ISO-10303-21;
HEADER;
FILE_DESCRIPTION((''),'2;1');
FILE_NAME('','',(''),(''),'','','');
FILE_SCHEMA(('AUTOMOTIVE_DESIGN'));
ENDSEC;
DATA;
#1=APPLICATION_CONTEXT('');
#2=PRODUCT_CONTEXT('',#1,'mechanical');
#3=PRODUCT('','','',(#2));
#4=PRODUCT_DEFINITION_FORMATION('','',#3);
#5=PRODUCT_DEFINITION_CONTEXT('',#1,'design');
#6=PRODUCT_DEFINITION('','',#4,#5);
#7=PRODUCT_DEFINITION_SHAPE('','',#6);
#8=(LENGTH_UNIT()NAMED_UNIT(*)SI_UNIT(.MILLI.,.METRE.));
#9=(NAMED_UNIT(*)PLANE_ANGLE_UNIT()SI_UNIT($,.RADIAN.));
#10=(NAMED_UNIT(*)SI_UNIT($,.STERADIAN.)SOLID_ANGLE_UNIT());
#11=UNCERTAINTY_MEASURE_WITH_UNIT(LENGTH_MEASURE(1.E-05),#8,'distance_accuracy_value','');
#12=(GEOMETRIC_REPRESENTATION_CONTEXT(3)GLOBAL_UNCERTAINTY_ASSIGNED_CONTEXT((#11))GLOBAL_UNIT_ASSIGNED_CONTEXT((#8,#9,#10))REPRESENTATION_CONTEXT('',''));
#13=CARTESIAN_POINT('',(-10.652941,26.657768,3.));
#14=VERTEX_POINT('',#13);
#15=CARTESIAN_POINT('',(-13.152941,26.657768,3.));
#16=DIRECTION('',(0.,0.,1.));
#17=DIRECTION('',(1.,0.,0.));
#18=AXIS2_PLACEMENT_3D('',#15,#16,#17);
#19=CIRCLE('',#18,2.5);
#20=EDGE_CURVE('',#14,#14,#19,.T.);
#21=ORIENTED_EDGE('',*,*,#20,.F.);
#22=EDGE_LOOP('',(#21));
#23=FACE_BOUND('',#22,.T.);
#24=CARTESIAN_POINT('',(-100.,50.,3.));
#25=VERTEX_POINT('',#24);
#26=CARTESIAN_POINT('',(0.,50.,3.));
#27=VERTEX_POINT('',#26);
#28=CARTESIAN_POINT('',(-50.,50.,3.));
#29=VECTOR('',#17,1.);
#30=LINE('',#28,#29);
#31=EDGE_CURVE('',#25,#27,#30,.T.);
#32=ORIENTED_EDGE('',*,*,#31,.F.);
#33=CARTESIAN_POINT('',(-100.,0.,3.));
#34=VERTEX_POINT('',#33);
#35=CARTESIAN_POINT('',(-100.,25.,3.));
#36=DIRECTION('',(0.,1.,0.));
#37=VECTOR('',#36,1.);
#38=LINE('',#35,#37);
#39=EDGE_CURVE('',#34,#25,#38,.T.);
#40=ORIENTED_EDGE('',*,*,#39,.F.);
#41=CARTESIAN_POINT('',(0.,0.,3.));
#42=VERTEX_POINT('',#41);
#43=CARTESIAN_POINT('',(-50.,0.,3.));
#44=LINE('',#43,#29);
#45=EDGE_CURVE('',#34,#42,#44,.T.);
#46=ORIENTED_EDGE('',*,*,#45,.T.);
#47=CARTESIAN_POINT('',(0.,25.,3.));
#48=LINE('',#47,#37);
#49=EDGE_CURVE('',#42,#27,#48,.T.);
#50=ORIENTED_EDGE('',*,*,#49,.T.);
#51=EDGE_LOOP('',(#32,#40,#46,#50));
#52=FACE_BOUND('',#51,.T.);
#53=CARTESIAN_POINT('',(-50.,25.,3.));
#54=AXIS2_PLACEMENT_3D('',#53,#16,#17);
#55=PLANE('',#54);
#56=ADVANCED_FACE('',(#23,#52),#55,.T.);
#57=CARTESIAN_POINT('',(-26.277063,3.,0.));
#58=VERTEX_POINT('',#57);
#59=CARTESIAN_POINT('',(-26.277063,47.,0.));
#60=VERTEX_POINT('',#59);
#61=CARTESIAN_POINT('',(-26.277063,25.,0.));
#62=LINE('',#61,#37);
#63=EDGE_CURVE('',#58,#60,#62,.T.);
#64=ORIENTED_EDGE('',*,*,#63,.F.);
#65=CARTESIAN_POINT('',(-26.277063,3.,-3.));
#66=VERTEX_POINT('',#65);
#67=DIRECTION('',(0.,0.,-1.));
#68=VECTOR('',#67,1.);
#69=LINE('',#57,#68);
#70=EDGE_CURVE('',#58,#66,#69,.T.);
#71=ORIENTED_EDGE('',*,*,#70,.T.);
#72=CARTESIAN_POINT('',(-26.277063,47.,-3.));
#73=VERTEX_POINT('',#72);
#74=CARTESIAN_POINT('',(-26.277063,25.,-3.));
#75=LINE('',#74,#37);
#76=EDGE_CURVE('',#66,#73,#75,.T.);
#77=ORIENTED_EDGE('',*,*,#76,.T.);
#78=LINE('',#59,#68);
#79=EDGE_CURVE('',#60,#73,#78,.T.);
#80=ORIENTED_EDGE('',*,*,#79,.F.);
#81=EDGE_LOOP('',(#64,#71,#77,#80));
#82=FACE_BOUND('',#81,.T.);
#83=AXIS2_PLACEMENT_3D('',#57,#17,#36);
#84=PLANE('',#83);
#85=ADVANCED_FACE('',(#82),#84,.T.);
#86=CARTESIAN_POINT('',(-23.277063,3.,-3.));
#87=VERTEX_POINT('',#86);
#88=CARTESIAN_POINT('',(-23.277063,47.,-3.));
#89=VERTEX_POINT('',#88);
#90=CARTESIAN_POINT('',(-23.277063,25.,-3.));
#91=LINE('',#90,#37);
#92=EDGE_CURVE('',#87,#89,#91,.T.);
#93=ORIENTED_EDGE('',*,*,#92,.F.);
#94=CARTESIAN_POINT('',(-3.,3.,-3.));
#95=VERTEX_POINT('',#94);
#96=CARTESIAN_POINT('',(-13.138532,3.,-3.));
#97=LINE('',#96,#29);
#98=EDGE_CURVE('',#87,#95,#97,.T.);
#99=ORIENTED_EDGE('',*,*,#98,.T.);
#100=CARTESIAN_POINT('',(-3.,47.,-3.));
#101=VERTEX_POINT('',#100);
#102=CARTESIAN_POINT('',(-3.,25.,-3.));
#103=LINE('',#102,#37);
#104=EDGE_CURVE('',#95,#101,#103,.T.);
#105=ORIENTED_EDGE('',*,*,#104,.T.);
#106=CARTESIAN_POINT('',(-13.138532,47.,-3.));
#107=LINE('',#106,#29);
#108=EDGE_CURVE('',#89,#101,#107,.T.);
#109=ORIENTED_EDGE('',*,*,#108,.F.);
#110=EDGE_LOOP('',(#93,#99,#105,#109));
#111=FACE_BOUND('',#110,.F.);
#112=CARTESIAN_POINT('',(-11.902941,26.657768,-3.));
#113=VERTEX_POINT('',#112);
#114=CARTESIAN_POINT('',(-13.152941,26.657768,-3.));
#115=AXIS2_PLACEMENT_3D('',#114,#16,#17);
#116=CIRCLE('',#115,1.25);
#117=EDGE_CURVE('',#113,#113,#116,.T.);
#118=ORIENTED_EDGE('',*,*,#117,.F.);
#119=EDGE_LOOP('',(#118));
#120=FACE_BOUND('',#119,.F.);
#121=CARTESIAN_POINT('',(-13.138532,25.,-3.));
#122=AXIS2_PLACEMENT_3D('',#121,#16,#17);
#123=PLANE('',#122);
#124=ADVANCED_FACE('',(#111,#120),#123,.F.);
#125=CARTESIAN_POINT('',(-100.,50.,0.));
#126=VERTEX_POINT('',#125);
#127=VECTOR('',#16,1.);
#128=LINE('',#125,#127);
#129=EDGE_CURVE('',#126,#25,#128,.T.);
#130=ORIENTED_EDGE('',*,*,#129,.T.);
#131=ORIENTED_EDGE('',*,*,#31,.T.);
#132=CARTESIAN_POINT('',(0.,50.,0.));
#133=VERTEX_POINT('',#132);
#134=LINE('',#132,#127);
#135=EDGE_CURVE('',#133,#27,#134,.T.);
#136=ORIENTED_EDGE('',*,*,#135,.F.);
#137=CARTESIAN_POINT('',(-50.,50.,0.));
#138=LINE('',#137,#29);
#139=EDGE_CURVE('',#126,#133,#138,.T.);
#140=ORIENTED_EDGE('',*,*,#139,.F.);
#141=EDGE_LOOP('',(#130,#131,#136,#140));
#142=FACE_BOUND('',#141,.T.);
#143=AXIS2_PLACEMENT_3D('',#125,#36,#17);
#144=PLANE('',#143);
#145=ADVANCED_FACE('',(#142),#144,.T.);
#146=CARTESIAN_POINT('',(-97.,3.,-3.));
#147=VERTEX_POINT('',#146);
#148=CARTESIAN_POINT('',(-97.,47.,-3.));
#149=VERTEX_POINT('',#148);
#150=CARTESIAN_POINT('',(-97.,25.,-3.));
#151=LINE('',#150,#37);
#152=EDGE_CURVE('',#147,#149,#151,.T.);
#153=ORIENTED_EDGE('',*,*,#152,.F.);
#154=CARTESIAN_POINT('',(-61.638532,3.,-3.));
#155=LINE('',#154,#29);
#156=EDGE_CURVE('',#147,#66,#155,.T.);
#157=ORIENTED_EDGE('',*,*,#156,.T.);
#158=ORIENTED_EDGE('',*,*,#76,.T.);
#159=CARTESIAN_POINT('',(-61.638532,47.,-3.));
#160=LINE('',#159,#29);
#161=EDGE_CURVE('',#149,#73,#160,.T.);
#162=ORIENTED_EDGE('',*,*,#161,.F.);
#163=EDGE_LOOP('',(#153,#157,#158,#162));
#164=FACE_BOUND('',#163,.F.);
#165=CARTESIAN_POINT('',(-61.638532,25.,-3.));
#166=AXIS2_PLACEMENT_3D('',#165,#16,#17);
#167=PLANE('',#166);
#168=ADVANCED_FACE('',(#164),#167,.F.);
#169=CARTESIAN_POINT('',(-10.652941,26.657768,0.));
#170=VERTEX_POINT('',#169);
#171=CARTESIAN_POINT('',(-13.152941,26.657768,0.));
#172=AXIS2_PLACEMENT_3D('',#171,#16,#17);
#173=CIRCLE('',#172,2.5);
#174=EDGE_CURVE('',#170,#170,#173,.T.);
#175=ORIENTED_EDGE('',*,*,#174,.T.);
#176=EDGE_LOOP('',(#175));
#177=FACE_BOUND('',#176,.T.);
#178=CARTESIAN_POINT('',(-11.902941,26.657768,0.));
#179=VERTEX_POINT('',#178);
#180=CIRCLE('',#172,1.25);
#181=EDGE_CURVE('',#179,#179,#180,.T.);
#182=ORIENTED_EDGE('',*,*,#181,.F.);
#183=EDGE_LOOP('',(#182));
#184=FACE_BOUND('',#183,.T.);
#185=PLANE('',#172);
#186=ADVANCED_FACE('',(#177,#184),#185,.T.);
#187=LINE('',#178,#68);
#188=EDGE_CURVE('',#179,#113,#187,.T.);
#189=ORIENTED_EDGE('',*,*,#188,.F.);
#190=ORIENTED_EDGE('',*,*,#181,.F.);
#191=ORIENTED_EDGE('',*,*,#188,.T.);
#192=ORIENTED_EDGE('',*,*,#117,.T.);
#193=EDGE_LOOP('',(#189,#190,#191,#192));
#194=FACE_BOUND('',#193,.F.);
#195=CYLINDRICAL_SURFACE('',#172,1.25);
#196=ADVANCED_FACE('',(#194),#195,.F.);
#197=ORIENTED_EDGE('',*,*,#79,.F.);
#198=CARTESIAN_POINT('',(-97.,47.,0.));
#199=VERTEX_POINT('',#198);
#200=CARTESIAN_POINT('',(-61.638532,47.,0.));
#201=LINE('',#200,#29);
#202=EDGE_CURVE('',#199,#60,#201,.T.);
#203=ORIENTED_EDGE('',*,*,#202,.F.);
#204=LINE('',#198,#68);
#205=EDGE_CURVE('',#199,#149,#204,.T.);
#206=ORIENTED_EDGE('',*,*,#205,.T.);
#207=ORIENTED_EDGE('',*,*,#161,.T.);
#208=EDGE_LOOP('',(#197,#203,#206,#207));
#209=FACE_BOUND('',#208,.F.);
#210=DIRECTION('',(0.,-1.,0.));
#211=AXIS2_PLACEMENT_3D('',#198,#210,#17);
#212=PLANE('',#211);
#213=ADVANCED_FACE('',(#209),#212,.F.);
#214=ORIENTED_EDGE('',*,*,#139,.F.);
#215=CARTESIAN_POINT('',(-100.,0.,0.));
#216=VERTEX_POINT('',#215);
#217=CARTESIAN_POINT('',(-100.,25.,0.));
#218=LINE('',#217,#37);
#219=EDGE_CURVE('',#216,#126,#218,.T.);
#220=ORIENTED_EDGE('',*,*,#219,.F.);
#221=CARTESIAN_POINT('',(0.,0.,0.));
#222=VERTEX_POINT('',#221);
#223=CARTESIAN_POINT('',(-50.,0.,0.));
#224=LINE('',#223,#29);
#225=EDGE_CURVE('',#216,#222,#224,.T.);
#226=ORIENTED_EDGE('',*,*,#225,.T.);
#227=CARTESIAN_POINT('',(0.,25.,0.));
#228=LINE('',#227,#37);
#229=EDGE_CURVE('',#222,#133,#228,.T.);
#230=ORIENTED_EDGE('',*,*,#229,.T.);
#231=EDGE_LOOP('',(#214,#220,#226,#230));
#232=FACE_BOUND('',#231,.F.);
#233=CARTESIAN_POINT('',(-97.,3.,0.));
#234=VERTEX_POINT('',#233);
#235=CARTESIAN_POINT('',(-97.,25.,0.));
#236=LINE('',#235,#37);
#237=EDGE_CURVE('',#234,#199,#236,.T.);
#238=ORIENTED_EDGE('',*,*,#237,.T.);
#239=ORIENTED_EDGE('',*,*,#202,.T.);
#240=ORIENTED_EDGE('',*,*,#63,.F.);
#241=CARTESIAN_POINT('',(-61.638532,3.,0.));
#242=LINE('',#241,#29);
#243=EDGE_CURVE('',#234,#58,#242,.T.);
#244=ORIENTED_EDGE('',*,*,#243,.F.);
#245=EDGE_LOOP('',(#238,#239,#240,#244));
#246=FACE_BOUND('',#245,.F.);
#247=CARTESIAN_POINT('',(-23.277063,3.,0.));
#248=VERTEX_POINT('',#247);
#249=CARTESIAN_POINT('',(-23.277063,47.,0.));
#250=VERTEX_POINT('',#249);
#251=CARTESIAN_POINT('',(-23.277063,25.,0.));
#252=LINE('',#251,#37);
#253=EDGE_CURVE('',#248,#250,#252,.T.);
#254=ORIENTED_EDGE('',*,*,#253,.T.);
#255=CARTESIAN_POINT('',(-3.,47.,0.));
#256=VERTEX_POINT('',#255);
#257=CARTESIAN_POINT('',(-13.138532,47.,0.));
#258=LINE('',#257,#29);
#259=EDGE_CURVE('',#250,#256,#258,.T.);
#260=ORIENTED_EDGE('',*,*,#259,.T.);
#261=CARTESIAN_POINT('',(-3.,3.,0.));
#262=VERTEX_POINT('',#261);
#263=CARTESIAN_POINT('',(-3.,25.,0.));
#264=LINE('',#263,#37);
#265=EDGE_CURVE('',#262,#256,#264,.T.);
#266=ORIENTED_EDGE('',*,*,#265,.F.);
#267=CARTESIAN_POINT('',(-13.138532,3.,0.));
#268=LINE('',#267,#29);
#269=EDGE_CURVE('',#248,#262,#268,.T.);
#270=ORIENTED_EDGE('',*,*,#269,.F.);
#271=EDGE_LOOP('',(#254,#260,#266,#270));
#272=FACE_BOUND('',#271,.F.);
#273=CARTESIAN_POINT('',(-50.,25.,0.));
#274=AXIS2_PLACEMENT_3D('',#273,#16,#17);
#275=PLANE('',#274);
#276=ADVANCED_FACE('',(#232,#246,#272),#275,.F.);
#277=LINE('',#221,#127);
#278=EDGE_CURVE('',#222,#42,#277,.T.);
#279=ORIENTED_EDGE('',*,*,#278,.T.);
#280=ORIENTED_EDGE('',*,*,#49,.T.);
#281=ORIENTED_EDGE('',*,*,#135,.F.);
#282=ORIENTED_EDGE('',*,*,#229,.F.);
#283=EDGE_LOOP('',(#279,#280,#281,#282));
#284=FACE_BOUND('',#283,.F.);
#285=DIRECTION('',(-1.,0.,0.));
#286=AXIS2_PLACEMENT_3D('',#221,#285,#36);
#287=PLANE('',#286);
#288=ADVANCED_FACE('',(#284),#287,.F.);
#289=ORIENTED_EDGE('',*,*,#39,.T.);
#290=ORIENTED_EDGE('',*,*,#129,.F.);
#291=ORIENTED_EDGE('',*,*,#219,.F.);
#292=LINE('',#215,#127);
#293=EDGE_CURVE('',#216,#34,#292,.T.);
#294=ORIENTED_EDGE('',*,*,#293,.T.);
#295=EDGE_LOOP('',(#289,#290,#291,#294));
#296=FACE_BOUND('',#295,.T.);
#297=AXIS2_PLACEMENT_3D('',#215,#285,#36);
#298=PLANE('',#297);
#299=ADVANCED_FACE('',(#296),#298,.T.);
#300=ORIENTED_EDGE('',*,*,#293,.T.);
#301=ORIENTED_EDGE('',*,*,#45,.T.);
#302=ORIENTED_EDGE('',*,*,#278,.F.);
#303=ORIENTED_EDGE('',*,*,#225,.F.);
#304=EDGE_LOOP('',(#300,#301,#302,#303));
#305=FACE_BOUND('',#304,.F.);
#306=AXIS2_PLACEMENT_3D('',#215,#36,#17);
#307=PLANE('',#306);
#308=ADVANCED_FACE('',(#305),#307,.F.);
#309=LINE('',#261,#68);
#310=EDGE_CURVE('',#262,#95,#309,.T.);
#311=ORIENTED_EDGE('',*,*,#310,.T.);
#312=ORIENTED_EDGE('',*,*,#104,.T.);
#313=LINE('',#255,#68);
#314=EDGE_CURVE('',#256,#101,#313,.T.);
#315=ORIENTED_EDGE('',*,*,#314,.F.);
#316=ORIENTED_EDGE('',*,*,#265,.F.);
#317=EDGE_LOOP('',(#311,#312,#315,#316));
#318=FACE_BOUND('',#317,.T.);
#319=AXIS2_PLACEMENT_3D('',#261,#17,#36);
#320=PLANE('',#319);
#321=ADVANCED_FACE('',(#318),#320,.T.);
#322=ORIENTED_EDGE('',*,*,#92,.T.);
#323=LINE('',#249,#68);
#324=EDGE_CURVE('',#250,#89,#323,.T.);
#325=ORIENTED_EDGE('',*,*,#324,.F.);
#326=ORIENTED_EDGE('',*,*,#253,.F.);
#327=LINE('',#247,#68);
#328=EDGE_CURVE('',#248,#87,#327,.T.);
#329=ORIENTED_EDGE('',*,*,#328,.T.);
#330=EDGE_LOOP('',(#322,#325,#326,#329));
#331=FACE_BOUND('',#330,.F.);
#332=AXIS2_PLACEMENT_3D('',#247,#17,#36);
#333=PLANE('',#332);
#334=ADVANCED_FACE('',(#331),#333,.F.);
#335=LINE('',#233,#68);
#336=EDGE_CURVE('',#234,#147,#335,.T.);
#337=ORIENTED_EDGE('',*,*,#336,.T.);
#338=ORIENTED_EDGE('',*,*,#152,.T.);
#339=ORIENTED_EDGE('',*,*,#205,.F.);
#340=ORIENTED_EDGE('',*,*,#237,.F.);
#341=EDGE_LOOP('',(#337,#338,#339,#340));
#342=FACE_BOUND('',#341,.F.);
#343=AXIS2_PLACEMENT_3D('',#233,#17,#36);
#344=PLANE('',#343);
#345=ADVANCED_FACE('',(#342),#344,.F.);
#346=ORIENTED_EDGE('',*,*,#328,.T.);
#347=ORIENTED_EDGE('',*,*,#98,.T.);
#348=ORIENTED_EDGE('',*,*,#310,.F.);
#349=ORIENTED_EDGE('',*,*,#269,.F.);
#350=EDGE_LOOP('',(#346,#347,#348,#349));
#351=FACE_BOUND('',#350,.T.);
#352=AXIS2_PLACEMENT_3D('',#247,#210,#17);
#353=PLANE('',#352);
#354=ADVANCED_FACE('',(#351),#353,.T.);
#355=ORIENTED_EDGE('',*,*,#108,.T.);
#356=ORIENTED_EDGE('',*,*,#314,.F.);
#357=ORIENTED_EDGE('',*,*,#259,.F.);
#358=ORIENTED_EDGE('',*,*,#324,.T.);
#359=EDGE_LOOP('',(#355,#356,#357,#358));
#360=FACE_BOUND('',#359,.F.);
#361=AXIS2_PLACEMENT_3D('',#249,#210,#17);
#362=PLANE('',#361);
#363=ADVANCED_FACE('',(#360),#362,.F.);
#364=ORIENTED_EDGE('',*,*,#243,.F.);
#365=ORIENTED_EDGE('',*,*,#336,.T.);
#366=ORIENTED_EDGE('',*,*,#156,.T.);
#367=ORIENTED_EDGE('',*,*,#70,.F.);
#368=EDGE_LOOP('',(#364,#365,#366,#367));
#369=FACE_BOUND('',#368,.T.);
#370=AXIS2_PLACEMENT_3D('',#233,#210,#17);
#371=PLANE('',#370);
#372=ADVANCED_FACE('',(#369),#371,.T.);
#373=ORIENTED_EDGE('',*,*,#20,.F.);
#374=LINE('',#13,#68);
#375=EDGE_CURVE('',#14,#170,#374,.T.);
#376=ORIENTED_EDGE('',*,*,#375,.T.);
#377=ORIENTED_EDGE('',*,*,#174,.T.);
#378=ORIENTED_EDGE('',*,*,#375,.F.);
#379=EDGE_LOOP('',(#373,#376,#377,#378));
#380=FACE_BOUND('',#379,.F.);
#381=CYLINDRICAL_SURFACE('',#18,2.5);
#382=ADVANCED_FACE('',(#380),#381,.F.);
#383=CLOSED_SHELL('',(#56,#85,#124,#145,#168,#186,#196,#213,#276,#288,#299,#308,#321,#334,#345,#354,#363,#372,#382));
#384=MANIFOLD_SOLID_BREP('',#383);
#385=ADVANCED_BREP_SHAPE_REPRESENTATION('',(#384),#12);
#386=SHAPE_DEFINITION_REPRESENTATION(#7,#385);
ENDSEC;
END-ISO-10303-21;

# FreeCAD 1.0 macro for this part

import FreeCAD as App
import Part
import Sketcher
from FreeCAD import Vector


def add_polygon(sketch, points):
    """Adds a closed chain of lines whose ends are joined by coincident constraints."""
    first, n = sketch.GeometryCount, len(points)
    for a, b in zip(points, points[1:] + points[:1]):
        sketch.addGeometry(Part.LineSegment(App.Vector(*a, 0), App.Vector(*b, 0)), False)
    for i in range(n):
        sketch.addConstraint(Sketcher.Constraint("Coincident", first + i, 2, first + (i + 1) % n, 1))

doc = App.newDocument("Part")
body = doc.addObject("PartDesign::Body", "Body")

sketch1 = body.newObject("Sketcher::SketchObject", "Sketch")
sketch1.AttachmentSupport = (doc.getObject("XY_Plane"), [""])
sketch1.MapMode = "FlatFace"
add_polygon(sketch1, [(-100, 50), (-100, 0), (0, 0), (0, 50)])
sketch1.addConstraint(Sketcher.Constraint("Vertical", 0))
sketch1.addConstraint(Sketcher.Constraint("Horizontal", 1))
sketch1.addConstraint(Sketcher.Constraint("Vertical", 2))
sketch1.addConstraint(Sketcher.Constraint("Horizontal", 3))
sketch1.addConstraint(Sketcher.Constraint("Coincident", 1, 2, -1, 1))
sketch1.addConstraint(Sketcher.Constraint("DistanceX", 1, 1, 1, 2, 100.0))
sketch1.addConstraint(Sketcher.Constraint("DistanceY", 0, 2, 0, 1, 50.0))
pad1 = body.newObject("PartDesign::Pad", "Pad")
pad1.Profile = sketch1
pad1.Length = 3

sketch2 = body.newObject("Sketcher::SketchObject", "Sketch001")
sketch2.AttachmentSupport = (doc.getObject("XY_Plane"), [""])
sketch2.MapMode = "FlatFace"
add_polygon(sketch2, [(-97, 47), (-97, 3), (-26, 3), (-26, 47)])
add_polygon(sketch2, [(-23, 47), (-23, 3), (-3, 3), (-3, 47)])
sketch2.addConstraint(Sketcher.Constraint("Vertical", 0))
sketch2.addConstraint(Sketcher.Constraint("Horizontal", 1))
sketch2.addConstraint(Sketcher.Constraint("Vertical", 2))
sketch2.addConstraint(Sketcher.Constraint("Horizontal", 3))
sketch2.addConstraint(Sketcher.Constraint("Vertical", 4))
sketch2.addConstraint(Sketcher.Constraint("Horizontal", 5))
sketch2.addConstraint(Sketcher.Constraint("Vertical", 6))
sketch2.addConstraint(Sketcher.Constraint("Horizontal", 7))
sketch2.addConstraint(Sketcher.Constraint("Horizontal", 1, 2, 4, 2))
sketch2.addConstraint(Sketcher.Constraint("Horizontal", 3, 2, 6, 2))
sketch2.addConstraint(Sketcher.Constraint("DistanceY", 0, 2, 0, 1, 44.0))
sketch2.addConstraint(Sketcher.Constraint("DistanceX", 0, 2, -1, 1, 97.0))
sketch2.addConstraint(Sketcher.Constraint("DistanceY", -1, 1, 0, 2, 3.0))
sketch2.addConstraint(Sketcher.Constraint("DistanceX", 5, 2, -1, 1, 3.0))
sketch2.addConstraint(Sketcher.Constraint("DistanceX", 1, 2, 4, 2, 3.0))
sketch2.addConstraint(Sketcher.Constraint("DistanceX", 1, 1, 1, 2, 70.722937))
pad2 = body.newObject("PartDesign::Pad", "Pad001")
pad2.Profile = sketch2
pad2.Length = 3
pad2.Reversed = True

sketch3 = body.newObject("Sketcher::SketchObject", "Sketch002")
sketch3.AttachmentSupport = (doc.getObject("XY_Plane"), [""])
sketch3.MapMode = "FlatFace"
sketch3.AttachmentOffset = App.Placement(Vector(0, 0, 3), App.Rotation())
sketch3.addGeometry(Part.Circle(Vector(-13.2, 26.7, 0), Vector(0, 0, 1), 2.5), False)
sketch3.addConstraint(Sketcher.Constraint("Diameter", 0, 5.0))
sketch3.addConstraint(Sketcher.Constraint("DistanceX", 0, 3, -1, 1, 13.152941))
sketch3.addConstraint(Sketcher.Constraint("DistanceY", -1, 1, 0, 3, 26.657768))
pocket1 = body.newObject("PartDesign::Pocket", "Pocket")
pocket1.Profile = sketch3
pocket1.Length = 3

sketch4 = body.newObject("Sketcher::SketchObject", "Sketch003")
sketch4.AttachmentSupport = (doc.getObject("XY_Plane"), [""])
sketch4.MapMode = "FlatFace"
sketch4.addGeometry(Part.Circle(Vector(-13.2, 26.7, 0), Vector(0, 0, 1), 1.2), False)
sketch4.addConstraint(Sketcher.Constraint("Diameter", 0, 2.5))
sketch4.addConstraint(Sketcher.Constraint("DistanceX", 0, 3, -1, 1, 13.152941))
sketch4.addConstraint(Sketcher.Constraint("DistanceY", -1, 1, 0, 3, 26.657768))
pocket2 = body.newObject("PartDesign::Pocket", "Pocket001")
pocket2.Profile = sketch4
pocket2.Length = 25

doc.recompute()
